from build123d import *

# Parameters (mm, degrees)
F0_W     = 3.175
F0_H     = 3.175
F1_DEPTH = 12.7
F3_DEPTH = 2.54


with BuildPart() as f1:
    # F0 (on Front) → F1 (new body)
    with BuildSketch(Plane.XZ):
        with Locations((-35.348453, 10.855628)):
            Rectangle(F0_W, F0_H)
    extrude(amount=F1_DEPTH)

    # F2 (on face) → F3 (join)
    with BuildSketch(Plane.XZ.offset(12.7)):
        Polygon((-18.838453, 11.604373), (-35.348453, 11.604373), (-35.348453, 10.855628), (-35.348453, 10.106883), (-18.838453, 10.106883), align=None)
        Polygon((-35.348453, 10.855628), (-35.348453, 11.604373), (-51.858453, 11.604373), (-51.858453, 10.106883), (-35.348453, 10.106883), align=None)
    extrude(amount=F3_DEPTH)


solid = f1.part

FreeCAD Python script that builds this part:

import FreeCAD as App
import Part
import Sketcher
from FreeCAD import Vector
Q = App.Units.Quantity

doc = App.newDocument("Part")
body = doc.addObject("PartDesign::Body", "Body")

# Sketch on XZ plane
sketch1 = body.newObject("Sketcher::SketchObject", "Sketch")
sketch1.AttachmentSupport = (doc.getObject("XZ_Plane"), [""])
sketch1.MapMode = "FlatFace"
sketch1.addGeometry(Part.LineSegment(Vector(-36.9, 12.4, 0), Vector(-36.9, 9.3, 0)), False)
sketch1.addGeometry(Part.LineSegment(Vector(-36.9, 9.3, 0), Vector(-33.8, 9.3, 0)), False)
sketch1.addGeometry(Part.LineSegment(Vector(-33.8, 9.3, 0), Vector(-33.8, 12.4, 0)), False)
sketch1.addGeometry(Part.LineSegment(Vector(-33.8, 12.4, 0), Vector(-36.9, 12.4, 0)), False)
sketch1.addConstraint(Sketcher.Constraint("Coincident", 0, 2, 1, 1))
sketch1.addConstraint(Sketcher.Constraint("Coincident", 1, 2, 2, 1))
sketch1.addConstraint(Sketcher.Constraint("Coincident", 2, 2, 3, 1))
sketch1.addConstraint(Sketcher.Constraint("Coincident", 3, 2, 0, 1))
sketch1.addConstraint(Sketcher.Constraint("Vertical", 0))
sketch1.addConstraint(Sketcher.Constraint("Horizontal", 1))
sketch1.addConstraint(Sketcher.Constraint("Vertical", 2))
sketch1.addConstraint(Sketcher.Constraint("Horizontal", 3))
sketch1.addConstraint(Sketcher.Constraint("Equal", 3, 0))
sketch1.addConstraint(Sketcher.Constraint("DistanceX", 1, 1, 1, 2, Q("0.125 in")))
sketch1.addConstraint(Sketcher.Constraint("DistanceY", -1, 1, 0, 2, 9.268128))
sketch1.addConstraint(Sketcher.Constraint("DistanceX", 0, 2, -1, 1, 36.935953))
pad1 = body.newObject("PartDesign::Pad", "Pad")
pad1.Profile = sketch1
pad1.Length = Q("0.5 in")

# Sketch on XZ plane
sketch2 = body.newObject("Sketcher::SketchObject", "Sketch001")
sketch2.AttachmentSupport = (doc.getObject("XZ_Plane"), [""])
sketch2.MapMode = "FlatFace"
sketch2.AttachmentOffset = App.Placement(Vector(0, 0, 0.5 * 25.4), App.Rotation())
sketch2.addGeometry(Part.LineSegment(Vector(-18.8, 11.6, 0), Vector(-51.9, 11.6, 0)), False)
sketch2.addGeometry(Part.LineSegment(Vector(-51.9, 11.6, 0), Vector(-51.9, 10.1, 0)), False)
sketch2.addGeometry(Part.LineSegment(Vector(-51.9, 10.1, 0), Vector(-18.8, 10.1, 0)), False)
sketch2.addGeometry(Part.LineSegment(Vector(-18.8, 10.1, 0), Vector(-18.8, 11.6, 0)), False)
sketch2.addConstraint(Sketcher.Constraint("Coincident", 0, 2, 1, 1))
sketch2.addConstraint(Sketcher.Constraint("Coincident", 1, 2, 2, 1))
sketch2.addConstraint(Sketcher.Constraint("Coincident", 2, 2, 3, 1))
sketch2.addConstraint(Sketcher.Constraint("Coincident", 3, 2, 0, 1))
sketch2.addConstraint(Sketcher.Constraint("Horizontal", 0))
sketch2.addConstraint(Sketcher.Constraint("Vertical", 1))
sketch2.addConstraint(Sketcher.Constraint("Horizontal", 2))
sketch2.addConstraint(Sketcher.Constraint("Vertical", 3))
sketch2.addConstraint(Sketcher.Constraint("DistanceX", 0, 2, 0, 1, Q("1.3 in")))
sketch2.addConstraint(Sketcher.Constraint("DistanceY", 1, 2, 1, 1, 1.49749))
sketch2.addConstraint(Sketcher.Constraint("DistanceX", 0, 2, -1, 1, 51.858453))
sketch2.addConstraint(Sketcher.Constraint("DistanceY", -1, 1, 0, 2, 11.604373))
pad2 = body.newObject("PartDesign::Pad", "Pad001")
pad2.Profile = sketch2
pad2.Length = Q("0.1 in")

doc.recompute()
